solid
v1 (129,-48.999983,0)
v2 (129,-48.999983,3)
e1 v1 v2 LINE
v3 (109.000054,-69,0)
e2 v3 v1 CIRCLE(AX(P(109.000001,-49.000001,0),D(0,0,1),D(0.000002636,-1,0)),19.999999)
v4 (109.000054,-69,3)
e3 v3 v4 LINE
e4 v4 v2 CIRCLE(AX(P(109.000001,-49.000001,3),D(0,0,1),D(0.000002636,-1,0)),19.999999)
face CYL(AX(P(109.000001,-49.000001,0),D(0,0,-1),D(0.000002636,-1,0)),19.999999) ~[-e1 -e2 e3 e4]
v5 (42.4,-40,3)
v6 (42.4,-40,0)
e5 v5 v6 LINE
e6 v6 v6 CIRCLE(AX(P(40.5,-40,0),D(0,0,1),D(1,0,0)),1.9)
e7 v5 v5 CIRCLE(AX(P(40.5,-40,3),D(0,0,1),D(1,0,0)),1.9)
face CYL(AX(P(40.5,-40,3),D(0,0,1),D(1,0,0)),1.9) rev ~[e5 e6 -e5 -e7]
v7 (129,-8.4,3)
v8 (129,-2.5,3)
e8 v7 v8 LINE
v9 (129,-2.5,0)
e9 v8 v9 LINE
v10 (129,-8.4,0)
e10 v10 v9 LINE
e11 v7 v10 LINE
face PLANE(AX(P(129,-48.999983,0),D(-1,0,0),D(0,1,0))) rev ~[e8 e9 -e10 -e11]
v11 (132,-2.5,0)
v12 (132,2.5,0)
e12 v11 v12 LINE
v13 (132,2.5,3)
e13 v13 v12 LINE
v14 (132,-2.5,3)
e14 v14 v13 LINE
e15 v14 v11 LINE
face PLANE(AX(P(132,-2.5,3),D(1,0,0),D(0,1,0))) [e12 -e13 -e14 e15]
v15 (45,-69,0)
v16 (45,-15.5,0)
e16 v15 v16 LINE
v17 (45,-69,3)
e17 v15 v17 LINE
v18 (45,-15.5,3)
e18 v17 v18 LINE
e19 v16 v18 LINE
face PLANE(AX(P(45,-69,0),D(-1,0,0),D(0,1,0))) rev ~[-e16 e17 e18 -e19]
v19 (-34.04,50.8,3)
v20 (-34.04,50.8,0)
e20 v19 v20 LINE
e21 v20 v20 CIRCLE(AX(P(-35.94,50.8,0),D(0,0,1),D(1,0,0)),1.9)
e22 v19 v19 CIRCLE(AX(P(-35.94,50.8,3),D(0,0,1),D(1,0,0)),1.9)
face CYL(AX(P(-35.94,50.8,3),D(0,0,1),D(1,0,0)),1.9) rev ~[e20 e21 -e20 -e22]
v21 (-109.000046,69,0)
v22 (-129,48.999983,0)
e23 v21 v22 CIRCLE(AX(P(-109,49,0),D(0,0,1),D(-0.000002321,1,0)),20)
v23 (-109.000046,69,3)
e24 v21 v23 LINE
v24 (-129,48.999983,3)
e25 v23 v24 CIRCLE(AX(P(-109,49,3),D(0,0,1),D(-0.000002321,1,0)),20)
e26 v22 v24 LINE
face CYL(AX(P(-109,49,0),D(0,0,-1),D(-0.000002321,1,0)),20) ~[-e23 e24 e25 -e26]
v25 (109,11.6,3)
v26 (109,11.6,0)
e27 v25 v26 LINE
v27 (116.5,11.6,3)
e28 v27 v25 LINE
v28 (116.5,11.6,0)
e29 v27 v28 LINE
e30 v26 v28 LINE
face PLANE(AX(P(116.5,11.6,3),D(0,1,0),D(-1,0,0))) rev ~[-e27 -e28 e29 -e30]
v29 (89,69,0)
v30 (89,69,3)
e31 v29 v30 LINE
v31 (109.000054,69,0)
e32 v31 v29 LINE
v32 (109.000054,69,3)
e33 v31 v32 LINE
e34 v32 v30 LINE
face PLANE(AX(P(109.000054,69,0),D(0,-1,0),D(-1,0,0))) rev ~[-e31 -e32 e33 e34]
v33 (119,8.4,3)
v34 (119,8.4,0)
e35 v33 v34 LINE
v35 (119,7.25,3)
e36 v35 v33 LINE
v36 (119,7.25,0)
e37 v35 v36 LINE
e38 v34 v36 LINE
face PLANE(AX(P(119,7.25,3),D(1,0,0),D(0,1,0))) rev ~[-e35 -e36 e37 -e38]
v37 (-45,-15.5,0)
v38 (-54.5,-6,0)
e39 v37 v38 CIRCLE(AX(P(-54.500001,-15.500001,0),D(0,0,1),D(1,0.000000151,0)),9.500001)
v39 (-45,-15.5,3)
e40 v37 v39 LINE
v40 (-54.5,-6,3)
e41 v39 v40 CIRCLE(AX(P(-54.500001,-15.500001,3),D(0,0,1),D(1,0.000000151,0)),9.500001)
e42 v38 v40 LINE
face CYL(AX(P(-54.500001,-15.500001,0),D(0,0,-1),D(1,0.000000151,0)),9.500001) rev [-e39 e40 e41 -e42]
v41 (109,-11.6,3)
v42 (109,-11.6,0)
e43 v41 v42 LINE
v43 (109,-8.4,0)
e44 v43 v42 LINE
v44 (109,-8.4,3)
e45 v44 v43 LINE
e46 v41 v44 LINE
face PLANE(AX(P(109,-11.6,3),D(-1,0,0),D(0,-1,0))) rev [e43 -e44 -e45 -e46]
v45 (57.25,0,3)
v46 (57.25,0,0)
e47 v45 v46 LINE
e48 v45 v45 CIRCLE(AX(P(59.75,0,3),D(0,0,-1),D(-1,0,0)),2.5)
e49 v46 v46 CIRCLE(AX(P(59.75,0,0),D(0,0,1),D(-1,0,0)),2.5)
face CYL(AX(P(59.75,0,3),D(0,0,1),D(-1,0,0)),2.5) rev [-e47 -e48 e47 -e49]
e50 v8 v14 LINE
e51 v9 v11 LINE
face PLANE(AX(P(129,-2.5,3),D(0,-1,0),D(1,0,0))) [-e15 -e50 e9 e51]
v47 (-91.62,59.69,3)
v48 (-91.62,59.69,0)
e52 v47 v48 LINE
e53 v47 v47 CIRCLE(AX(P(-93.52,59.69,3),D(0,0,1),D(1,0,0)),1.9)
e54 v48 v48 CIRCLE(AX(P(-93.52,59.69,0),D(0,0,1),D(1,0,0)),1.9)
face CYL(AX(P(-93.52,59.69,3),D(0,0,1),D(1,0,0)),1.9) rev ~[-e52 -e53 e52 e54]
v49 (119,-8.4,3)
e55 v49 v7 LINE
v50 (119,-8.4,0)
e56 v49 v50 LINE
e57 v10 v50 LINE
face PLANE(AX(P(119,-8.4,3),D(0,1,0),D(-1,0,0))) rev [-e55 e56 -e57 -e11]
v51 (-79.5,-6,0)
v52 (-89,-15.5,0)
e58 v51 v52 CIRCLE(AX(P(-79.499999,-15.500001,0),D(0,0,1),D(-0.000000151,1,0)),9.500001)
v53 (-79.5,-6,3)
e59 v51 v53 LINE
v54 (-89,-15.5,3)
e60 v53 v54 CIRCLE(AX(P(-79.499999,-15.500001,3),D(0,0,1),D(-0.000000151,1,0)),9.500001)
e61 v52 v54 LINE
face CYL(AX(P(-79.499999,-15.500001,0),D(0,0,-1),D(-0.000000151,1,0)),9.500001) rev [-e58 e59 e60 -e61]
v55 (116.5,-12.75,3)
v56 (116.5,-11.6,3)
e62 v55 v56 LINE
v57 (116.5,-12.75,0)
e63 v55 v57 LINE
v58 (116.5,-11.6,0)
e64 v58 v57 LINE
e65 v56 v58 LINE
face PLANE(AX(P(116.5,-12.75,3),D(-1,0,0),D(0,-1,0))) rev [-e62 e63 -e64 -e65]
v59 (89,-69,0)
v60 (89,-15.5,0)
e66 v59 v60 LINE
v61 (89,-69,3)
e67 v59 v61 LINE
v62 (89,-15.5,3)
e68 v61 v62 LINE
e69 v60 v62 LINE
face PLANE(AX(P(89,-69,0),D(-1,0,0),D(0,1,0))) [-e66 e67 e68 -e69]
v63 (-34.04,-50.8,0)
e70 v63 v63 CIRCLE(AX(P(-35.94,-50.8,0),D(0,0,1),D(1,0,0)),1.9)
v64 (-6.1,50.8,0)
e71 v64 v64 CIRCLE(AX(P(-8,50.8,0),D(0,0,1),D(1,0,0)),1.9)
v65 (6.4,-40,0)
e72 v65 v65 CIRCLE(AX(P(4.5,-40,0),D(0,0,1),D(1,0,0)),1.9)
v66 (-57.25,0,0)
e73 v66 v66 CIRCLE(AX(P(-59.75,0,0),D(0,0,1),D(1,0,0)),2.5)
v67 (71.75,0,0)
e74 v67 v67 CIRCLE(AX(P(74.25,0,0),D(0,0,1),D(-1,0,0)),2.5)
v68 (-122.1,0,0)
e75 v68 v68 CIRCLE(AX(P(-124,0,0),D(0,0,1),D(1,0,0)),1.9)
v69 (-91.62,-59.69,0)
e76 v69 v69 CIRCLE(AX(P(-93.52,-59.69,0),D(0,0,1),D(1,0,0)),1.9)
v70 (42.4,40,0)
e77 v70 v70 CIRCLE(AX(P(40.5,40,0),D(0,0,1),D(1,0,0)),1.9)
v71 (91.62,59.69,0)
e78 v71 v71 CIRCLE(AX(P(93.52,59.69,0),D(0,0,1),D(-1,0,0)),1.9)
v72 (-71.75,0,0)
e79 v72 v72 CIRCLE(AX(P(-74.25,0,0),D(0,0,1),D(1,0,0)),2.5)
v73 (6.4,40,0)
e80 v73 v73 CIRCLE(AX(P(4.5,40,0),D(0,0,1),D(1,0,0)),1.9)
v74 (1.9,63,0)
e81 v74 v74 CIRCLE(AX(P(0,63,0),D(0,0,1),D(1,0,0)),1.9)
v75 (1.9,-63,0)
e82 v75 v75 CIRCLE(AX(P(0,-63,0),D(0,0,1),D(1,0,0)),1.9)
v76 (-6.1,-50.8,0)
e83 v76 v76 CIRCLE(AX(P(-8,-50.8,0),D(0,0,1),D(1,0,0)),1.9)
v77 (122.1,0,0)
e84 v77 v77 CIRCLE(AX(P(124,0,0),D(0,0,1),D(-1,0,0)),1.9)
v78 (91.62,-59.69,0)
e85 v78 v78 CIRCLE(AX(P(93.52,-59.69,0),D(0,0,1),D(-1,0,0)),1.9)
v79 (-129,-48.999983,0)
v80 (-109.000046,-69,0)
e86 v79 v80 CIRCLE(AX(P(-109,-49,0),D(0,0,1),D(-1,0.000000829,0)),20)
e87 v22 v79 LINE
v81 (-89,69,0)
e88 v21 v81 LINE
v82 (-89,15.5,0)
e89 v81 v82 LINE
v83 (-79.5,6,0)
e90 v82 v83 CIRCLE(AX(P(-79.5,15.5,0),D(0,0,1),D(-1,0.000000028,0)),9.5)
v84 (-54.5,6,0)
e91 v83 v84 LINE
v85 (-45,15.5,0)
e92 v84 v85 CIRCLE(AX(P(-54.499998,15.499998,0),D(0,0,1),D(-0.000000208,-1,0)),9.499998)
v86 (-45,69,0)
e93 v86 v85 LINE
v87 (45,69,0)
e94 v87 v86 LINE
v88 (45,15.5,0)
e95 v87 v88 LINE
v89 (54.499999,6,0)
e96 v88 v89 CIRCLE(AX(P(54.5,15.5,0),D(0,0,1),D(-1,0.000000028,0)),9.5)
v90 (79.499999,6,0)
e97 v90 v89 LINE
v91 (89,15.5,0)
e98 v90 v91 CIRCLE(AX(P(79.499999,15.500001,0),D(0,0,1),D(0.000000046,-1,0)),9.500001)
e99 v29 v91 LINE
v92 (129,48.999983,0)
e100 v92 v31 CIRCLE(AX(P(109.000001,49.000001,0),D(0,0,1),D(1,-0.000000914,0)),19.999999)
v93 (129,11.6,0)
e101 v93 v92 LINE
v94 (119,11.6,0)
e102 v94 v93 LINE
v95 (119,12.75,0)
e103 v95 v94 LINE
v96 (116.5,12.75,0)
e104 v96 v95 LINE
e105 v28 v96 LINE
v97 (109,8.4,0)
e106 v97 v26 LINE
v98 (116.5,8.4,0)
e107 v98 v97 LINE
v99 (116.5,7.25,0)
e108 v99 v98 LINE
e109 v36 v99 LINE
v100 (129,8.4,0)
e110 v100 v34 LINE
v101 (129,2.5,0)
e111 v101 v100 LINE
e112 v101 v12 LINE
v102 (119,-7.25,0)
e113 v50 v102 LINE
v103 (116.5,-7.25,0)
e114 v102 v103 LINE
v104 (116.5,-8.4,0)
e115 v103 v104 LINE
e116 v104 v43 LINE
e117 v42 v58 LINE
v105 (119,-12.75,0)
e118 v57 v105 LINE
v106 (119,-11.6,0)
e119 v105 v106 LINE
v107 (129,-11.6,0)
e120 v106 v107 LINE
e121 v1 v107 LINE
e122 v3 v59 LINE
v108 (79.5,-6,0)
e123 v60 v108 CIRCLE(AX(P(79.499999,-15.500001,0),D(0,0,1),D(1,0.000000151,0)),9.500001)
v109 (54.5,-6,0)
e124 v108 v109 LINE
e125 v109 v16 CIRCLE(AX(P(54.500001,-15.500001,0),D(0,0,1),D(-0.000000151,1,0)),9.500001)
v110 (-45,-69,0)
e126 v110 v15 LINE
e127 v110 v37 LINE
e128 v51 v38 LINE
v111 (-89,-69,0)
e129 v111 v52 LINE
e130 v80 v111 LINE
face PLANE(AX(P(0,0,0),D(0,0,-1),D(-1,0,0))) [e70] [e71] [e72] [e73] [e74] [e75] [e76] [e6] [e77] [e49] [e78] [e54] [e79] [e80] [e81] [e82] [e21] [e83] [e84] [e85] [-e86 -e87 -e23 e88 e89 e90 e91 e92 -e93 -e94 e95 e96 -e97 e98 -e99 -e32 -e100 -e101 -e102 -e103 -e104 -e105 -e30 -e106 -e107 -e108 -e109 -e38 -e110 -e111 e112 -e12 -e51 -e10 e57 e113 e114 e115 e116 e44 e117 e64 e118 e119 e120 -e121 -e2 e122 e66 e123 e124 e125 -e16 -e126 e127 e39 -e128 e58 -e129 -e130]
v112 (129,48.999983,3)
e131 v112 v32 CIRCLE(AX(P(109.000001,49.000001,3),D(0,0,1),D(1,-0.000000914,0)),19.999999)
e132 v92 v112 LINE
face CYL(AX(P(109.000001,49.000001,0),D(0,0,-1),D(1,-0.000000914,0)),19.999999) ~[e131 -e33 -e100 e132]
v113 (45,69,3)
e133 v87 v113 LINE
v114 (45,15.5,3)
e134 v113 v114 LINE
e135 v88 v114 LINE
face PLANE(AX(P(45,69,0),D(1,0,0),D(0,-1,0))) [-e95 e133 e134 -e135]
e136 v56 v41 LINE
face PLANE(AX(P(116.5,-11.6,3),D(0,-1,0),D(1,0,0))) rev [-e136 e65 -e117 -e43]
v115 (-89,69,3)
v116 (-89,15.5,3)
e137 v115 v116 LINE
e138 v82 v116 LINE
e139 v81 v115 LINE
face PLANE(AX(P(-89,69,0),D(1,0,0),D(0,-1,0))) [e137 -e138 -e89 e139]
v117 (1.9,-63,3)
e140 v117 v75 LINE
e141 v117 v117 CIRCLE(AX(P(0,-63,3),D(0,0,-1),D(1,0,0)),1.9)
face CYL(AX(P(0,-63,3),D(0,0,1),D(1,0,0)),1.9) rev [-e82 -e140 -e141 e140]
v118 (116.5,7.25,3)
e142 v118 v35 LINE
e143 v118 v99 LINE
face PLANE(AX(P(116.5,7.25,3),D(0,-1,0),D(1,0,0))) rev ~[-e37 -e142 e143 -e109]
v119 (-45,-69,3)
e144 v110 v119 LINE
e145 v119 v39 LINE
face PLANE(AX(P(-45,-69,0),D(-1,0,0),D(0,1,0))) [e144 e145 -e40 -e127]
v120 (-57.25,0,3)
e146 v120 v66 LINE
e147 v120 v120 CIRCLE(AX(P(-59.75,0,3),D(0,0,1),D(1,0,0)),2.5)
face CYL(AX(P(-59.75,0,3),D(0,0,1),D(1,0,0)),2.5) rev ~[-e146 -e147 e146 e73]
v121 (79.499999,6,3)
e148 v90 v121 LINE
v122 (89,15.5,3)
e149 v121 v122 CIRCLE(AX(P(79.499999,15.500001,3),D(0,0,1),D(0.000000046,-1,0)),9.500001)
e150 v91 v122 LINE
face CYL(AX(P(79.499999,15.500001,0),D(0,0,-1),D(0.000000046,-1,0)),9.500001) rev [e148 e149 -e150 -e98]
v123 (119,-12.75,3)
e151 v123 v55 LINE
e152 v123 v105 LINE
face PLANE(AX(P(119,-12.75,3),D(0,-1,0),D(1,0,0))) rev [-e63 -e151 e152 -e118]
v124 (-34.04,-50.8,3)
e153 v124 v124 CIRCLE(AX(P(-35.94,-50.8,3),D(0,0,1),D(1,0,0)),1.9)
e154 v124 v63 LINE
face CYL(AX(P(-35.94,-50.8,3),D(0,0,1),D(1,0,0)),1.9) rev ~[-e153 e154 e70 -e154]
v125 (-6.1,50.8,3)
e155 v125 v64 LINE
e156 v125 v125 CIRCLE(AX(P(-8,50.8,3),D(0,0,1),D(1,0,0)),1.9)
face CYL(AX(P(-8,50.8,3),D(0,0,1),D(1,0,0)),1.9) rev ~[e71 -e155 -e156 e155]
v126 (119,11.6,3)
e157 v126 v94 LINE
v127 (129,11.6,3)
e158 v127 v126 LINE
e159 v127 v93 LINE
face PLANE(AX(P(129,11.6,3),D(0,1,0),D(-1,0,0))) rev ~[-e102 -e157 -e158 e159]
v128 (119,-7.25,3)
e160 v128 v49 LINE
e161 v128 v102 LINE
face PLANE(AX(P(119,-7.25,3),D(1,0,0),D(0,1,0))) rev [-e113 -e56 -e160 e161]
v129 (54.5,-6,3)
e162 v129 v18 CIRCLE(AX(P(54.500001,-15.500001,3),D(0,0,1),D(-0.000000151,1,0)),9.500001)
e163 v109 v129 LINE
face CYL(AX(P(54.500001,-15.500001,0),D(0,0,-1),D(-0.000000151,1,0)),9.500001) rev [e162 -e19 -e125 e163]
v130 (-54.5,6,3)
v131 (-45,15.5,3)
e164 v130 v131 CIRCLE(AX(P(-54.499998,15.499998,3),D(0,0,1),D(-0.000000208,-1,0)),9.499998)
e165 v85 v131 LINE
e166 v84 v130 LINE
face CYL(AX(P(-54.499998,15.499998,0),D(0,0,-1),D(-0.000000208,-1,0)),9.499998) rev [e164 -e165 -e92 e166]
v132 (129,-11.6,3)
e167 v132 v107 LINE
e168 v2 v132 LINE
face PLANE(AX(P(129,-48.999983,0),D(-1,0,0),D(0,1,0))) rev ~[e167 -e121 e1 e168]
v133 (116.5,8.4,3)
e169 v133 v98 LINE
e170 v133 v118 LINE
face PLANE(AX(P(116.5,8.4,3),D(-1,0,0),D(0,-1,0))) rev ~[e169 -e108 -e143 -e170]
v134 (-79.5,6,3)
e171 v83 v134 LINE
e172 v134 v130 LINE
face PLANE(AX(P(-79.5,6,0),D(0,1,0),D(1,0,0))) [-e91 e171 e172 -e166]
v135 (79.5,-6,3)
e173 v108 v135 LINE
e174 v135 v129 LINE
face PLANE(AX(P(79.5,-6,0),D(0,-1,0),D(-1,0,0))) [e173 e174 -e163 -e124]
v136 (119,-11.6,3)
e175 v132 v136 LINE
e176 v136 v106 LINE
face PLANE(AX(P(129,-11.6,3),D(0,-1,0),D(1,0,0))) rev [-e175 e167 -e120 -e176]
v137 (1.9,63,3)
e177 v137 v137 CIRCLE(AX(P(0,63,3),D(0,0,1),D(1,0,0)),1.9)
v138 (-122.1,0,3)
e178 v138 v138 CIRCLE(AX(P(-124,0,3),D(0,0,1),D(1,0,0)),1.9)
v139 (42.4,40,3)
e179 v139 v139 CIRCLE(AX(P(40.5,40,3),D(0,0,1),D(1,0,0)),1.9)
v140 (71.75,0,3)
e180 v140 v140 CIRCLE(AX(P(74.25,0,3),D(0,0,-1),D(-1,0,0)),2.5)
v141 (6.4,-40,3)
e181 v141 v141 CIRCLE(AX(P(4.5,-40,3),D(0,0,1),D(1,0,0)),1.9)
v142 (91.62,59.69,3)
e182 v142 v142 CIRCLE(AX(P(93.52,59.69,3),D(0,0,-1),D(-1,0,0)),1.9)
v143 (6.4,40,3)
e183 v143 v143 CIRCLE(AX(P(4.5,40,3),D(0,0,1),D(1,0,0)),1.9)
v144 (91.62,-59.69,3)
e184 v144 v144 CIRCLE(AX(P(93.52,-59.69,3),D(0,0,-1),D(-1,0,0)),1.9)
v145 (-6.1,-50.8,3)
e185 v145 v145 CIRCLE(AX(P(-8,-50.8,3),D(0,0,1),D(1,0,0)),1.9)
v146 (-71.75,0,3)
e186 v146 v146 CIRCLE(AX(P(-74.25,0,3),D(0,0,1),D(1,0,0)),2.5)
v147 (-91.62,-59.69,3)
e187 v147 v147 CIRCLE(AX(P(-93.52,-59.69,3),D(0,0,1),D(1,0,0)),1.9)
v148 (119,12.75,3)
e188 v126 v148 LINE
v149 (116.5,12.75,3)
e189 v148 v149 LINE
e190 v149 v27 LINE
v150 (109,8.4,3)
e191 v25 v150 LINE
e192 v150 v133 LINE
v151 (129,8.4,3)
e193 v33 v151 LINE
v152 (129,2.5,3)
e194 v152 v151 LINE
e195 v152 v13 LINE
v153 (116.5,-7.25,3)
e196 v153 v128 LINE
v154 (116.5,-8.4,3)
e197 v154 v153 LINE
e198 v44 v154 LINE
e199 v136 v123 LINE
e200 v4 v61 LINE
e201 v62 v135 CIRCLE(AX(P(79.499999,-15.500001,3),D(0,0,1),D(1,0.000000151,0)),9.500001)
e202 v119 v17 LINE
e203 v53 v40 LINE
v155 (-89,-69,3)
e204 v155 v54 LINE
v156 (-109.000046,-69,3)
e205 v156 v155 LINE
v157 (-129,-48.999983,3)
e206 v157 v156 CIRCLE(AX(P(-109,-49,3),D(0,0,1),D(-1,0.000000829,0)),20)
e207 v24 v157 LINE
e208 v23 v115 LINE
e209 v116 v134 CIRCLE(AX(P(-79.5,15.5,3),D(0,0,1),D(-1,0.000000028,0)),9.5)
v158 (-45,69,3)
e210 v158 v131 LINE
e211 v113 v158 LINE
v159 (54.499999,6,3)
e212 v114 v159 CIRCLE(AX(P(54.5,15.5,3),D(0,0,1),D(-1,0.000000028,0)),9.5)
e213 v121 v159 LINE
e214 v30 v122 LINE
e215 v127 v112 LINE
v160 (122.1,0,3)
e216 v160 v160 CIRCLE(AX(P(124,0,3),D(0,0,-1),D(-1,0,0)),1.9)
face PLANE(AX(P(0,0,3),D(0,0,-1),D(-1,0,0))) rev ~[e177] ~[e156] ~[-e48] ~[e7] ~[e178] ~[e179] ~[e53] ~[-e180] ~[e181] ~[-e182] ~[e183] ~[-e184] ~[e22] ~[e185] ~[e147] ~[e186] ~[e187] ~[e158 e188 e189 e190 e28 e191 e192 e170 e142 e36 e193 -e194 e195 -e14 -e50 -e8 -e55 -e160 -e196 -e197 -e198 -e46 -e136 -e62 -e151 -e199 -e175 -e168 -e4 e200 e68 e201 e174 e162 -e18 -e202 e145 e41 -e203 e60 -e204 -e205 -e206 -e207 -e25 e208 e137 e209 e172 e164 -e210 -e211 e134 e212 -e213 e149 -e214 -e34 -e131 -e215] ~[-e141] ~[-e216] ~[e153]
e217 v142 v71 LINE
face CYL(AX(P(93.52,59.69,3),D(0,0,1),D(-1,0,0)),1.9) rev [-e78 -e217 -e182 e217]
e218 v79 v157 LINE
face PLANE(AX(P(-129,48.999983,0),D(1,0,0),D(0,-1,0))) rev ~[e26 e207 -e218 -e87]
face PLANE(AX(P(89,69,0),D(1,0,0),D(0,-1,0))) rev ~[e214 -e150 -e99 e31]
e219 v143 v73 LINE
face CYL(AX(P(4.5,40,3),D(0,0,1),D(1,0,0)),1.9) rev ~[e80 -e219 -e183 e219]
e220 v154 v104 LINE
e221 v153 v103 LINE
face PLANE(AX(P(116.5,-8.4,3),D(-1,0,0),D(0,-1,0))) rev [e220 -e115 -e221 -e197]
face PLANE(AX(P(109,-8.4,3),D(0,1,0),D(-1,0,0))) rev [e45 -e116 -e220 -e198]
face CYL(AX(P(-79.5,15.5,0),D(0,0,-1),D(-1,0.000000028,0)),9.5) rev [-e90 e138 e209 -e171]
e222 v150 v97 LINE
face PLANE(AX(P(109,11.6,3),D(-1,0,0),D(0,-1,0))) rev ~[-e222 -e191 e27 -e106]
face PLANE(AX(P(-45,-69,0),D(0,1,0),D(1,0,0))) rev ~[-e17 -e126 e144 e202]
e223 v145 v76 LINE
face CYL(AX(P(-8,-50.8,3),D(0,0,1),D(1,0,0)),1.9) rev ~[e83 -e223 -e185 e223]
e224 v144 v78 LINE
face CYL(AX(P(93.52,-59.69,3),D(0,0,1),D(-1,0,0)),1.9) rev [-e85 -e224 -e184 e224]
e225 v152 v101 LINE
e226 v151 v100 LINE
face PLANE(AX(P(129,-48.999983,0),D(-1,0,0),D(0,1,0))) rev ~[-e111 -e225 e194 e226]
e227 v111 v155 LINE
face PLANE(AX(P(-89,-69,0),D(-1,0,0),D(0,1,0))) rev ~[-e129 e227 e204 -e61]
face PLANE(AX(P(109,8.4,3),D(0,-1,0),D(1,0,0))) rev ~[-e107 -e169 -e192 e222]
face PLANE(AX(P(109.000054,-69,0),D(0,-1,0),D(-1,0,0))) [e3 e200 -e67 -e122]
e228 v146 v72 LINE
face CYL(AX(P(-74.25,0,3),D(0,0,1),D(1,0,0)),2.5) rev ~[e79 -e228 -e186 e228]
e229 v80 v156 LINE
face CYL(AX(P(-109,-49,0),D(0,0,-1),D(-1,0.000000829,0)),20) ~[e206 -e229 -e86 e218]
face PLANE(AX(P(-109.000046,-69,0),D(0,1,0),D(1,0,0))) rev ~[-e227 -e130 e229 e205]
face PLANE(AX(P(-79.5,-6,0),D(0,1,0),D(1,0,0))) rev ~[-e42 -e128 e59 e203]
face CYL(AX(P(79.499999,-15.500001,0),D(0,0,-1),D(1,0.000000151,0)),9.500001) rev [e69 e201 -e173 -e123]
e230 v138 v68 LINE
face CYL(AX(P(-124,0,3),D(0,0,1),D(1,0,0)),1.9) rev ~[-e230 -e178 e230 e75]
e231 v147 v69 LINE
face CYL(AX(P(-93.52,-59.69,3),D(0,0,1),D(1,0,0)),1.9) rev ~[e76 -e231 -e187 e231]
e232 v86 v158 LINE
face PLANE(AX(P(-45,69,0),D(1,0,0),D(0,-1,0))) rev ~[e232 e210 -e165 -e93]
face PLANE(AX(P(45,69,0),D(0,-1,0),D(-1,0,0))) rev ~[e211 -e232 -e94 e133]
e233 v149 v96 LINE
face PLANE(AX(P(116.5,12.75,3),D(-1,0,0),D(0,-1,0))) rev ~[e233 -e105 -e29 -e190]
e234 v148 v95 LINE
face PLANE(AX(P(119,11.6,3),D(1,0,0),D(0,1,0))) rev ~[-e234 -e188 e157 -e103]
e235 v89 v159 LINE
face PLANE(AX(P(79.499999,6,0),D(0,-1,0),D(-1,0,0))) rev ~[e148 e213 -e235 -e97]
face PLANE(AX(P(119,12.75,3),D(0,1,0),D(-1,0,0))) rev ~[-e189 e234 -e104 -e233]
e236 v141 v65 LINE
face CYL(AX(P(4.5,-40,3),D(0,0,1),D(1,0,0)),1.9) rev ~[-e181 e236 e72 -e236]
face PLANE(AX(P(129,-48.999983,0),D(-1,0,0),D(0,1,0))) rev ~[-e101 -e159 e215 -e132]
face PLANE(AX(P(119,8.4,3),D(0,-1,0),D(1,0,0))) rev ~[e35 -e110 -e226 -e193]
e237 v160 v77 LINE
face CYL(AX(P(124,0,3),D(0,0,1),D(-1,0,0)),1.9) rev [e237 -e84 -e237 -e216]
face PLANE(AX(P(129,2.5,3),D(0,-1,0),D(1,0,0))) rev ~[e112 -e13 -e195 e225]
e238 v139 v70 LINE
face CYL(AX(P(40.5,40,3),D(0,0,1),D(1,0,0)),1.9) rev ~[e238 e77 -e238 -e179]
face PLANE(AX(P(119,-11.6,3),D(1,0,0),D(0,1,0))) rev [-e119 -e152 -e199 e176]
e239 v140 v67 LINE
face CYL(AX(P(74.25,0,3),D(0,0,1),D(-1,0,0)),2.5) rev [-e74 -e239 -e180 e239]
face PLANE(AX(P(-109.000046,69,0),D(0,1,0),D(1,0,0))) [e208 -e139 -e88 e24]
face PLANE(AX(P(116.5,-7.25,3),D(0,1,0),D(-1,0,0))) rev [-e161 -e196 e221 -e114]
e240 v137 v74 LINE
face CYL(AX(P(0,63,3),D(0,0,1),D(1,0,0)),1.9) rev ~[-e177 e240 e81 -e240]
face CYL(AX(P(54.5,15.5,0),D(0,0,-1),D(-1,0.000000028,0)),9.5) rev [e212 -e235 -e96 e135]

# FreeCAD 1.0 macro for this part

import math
import FreeCAD as App
import Part
import Sketcher
Q = App.Units.Quantity

doc = App.newDocument("Part")
body = doc.addObject("PartDesign::Body", "Body")

# Sketch on XY plane
sketch1 = body.newObject("Sketcher::SketchObject", "Sketch")
sketch1.AttachmentSupport = (doc.getObject("XY_Plane"), [""])
sketch1.MapMode = "FlatFace"
sketch1.addGeometry(Part.LineSegment(App.Vector(-45, -69, 0), App.Vector(45, -69, 0)), False)
sketch1.addGeometry(Part.LineSegment(App.Vector(45, -69, 0), App.Vector(45, -16, 0)), False)
sketch1.addGeometry(Part.ArcOfCircle(Part.Circle(App.Vector(55, -16, 0), App.Vector(0, 0, 1), 10), math.radians(90), math.radians(180)), False)
sketch1.addGeometry(Part.LineSegment(App.Vector(54, -6, 0), App.Vector(80, -6, 0)), False)
sketch1.addGeometry(Part.ArcOfCircle(Part.Circle(App.Vector(79, -16, 0), App.Vector(0, 0, 1), 10), math.radians(0), math.radians(90)), False)
sketch1.addGeometry(Part.LineSegment(App.Vector(89, -16, 0), App.Vector(89, -69, 0)), False)
sketch1.addGeometry(Part.LineSegment(App.Vector(89, -69, 0), App.Vector(109, -69, 0)), False)
sketch1.addGeometry(Part.ArcOfCircle(Part.Circle(App.Vector(109, -49, 0), App.Vector(0, 0, 1), 20), math.radians(-90), math.radians(0)), False)
sketch1.addGeometry(Part.LineSegment(App.Vector(129, -49, 0), App.Vector(129, 49, 0)), False)
sketch1.addGeometry(Part.ArcOfCircle(Part.Circle(App.Vector(109, 49, 0), App.Vector(0, 0, 1), 20), math.radians(0), math.radians(90)), False)
sketch1.addGeometry(Part.LineSegment(App.Vector(109, 69, 0), App.Vector(89, 69, 0)), False)
sketch1.addGeometry(Part.LineSegment(App.Vector(89, 69, 0), App.Vector(89, 16, 0)), False)
sketch1.addGeometry(Part.ArcOfCircle(Part.Circle(App.Vector(79, 16, 0), App.Vector(0, 0, 1), 10), math.radians(-90), math.radians(0)), False)
sketch1.addGeometry(Part.LineSegment(App.Vector(79, 6, 0), App.Vector(54, 6, 0)), False)
sketch1.addGeometry(Part.ArcOfCircle(Part.Circle(App.Vector(54, 15, 0), App.Vector(0, 0, 1), 9), math.radians(180), math.radians(270)), False)
sketch1.addGeometry(Part.LineSegment(App.Vector(45, 16, 0), App.Vector(45, 69, 0)), False)
sketch1.addGeometry(Part.LineSegment(App.Vector(45, 69, 0), App.Vector(-45, 69, 0)), False)
sketch1.addGeometry(Part.LineSegment(App.Vector(-45, 69, 0), App.Vector(-45, 16, 0)), False)
sketch1.addGeometry(Part.ArcOfCircle(Part.Circle(App.Vector(-54, 15, 0), App.Vector(0, 0, 1), 9), math.radians(-90), math.radians(0)), False)
sketch1.addGeometry(Part.LineSegment(App.Vector(-54, 6, 0), App.Vector(-80, 6, 0)), False)
sketch1.addGeometry(Part.ArcOfCircle(Part.Circle(App.Vector(-80, 15, 0), App.Vector(0, 0, 1), 9), math.radians(180), math.radians(270)), False)
sketch1.addGeometry(Part.LineSegment(App.Vector(-89, 16, 0), App.Vector(-89, 69, 0)), False)
sketch1.addGeometry(Part.LineSegment(App.Vector(-89, 69, 0), App.Vector(-109, 69, 0)), False)
sketch1.addGeometry(Part.ArcOfCircle(Part.Circle(App.Vector(-109, 49, 0), App.Vector(0, 0, 1), 20), math.radians(90), math.radians(180)), False)
sketch1.addGeometry(Part.LineSegment(App.Vector(-129, 49, 0), App.Vector(-129, -49, 0)), False)
sketch1.addGeometry(Part.ArcOfCircle(Part.Circle(App.Vector(-109, -49, 0), App.Vector(0, 0, 1), 20), math.radians(180), math.radians(270)), False)
sketch1.addGeometry(Part.LineSegment(App.Vector(-109, -69, 0), App.Vector(-89, -69, 0)), False)
sketch1.addGeometry(Part.LineSegment(App.Vector(-89, -69, 0), App.Vector(-89, -16, 0)), False)
sketch1.addGeometry(Part.ArcOfCircle(Part.Circle(App.Vector(-79, -16, 0), App.Vector(0, 0, 1), 10), math.radians(90), math.radians(180)), False)
sketch1.addGeometry(Part.LineSegment(App.Vector(-80, -6, 0), App.Vector(-54, -6, 0)), False)
sketch1.addGeometry(Part.ArcOfCircle(Part.Circle(App.Vector(-55, -16, 0), App.Vector(0, 0, 1), 10), math.radians(0), math.radians(90)), False)
sketch1.addGeometry(Part.LineSegment(App.Vector(-45, -16, 0), App.Vector(-45, -69, 0)), False)
sketch1.addConstraint(Sketcher.Constraint("Coincident", 0, 2, 1, 1))
sketch1.addConstraint(Sketcher.Constraint("Tangent", 1, 2, 2, 2))
sketch1.addConstraint(Sketcher.Constraint("Tangent", 2, 1, 3, 1))
sketch1.addConstraint(Sketcher.Constraint("Tangent", 3, 2, 4, 2))
sketch1.addConstraint(Sketcher.Constraint("Tangent", 4, 1, 5, 1))
sketch1.addConstraint(Sketcher.Constraint("Coincident", 5, 2, 6, 1))
sketch1.addConstraint(Sketcher.Constraint("Coincident", 6, 2, 7, 1))
sketch1.addConstraint(Sketcher.Constraint("Tangent", 7, 2, 8, 1))
sketch1.addConstraint(Sketcher.Constraint("Tangent", 8, 2, 9, 1))
sketch1.addConstraint(Sketcher.Constraint("Coincident", 9, 2, 10, 1))
sketch1.addConstraint(Sketcher.Constraint("Coincident", 10, 2, 11, 1))
sketch1.addConstraint(Sketcher.Constraint("Tangent", 11, 2, 12, 2))
sketch1.addConstraint(Sketcher.Constraint("Tangent", 12, 1, 13, 1))
sketch1.addConstraint(Sketcher.Constraint("Tangent", 13, 2, 14, 2))
sketch1.addConstraint(Sketcher.Constraint("Tangent", 14, 1, 15, 1))
sketch1.addConstraint(Sketcher.Constraint("Coincident", 15, 2, 16, 1))
sketch1.addConstraint(Sketcher.Constraint("Coincident", 16, 2, 17, 1))
sketch1.addConstraint(Sketcher.Constraint("Tangent", 17, 2, 18, 2))
sketch1.addConstraint(Sketcher.Constraint("Tangent", 18, 1, 19, 1))
sketch1.addConstraint(Sketcher.Constraint("Tangent", 19, 2, 20, 2))
sketch1.addConstraint(Sketcher.Constraint("Tangent", 20, 1, 21, 1))
sketch1.addConstraint(Sketcher.Constraint("Coincident", 21, 2, 22, 1))
sketch1.addConstraint(Sketcher.Constraint("Coincident", 22, 2, 23, 1))
sketch1.addConstraint(Sketcher.Constraint("Tangent", 23, 2, 24, 1))
sketch1.addConstraint(Sketcher.Constraint("Tangent", 24, 2, 25, 1))
sketch1.addConstraint(Sketcher.Constraint("Coincident", 25, 2, 26, 1))
sketch1.addConstraint(Sketcher.Constraint("Coincident", 26, 2, 27, 1))
sketch1.addConstraint(Sketcher.Constraint("Tangent", 27, 2, 28, 2))
sketch1.addConstraint(Sketcher.Constraint("Tangent", 28, 1, 29, 1))
sketch1.addConstraint(Sketcher.Constraint("Tangent", 29, 2, 30, 2))
sketch1.addConstraint(Sketcher.Constraint("Tangent", 30, 1, 31, 1))
sketch1.addConstraint(Sketcher.Constraint("Coincident", 31, 2, 0, 1))
sketch1.addConstraint(Sketcher.Constraint("Horizontal", 0))
sketch1.addConstraint(Sketcher.Constraint("Vertical", 1))
sketch1.addConstraint(Sketcher.Constraint("Horizontal", 3))
sketch1.addConstraint(Sketcher.Constraint("Vertical", 5))
sketch1.addConstraint(Sketcher.Constraint("Horizontal", 6))
sketch1.addConstraint(Sketcher.Constraint("Vertical", 8))
sketch1.addConstraint(Sketcher.Constraint("Horizontal", 10))
sketch1.addConstraint(Sketcher.Constraint("Vertical", 11))
sketch1.addConstraint(Sketcher.Constraint("Horizontal", 13))
sketch1.addConstraint(Sketcher.Constraint("Vertical", 15))
sketch1.addConstraint(Sketcher.Constraint("Horizontal", 16))
sketch1.addConstraint(Sketcher.Constraint("Vertical", 17))
sketch1.addConstraint(Sketcher.Constraint("Horizontal", 19))
sketch1.addConstraint(Sketcher.Constraint("Vertical", 21))
sketch1.addConstraint(Sketcher.Constraint("Horizontal", 22))
sketch1.addConstraint(Sketcher.Constraint("Vertical", 24))
sketch1.addConstraint(Sketcher.Constraint("Horizontal", 26))
sketch1.addConstraint(Sketcher.Constraint("Vertical", 27))
sketch1.addConstraint(Sketcher.Constraint("Horizontal", 29))
sketch1.addConstraint(Sketcher.Constraint("Vertical", 31))
sketch1.addConstraint(Sketcher.Constraint("Equal", 2, 4))
sketch1.addConstraint(Sketcher.Constraint("Equal", 7, 9))
sketch1.addConstraint(Sketcher.Constraint("Equal", 4, 12))
sketch1.addConstraint(Sketcher.Constraint("Equal", 12, 14))
sketch1.addConstraint(Sketcher.Constraint("Equal", 14, 18))
sketch1.addConstraint(Sketcher.Constraint("Equal", 18, 20))
sketch1.addConstraint(Sketcher.Constraint("Equal", 9, 23))
sketch1.addConstraint(Sketcher.Constraint("Equal", 23, 25))
sketch1.addConstraint(Sketcher.Constraint("Equal", 20, 28))
sketch1.addConstraint(Sketcher.Constraint("Equal", 28, 30))
sketch1.addConstraint(Sketcher.Constraint("Symmetric", 2, 3, 18, 3, -1, 1))
sketch1.addConstraint(Sketcher.Constraint("Symmetric", 7, 3, 23, 3, -1, 1))
sketch1.addConstraint(Sketcher.Constraint("Symmetric", 12, 3, 28, 3, -1, 1))
sketch1.addConstraint(Sketcher.Constraint("Symmetric", 9, 2, 25, 2, -1, 1))
sketch1.addConstraint(Sketcher.Constraint("Symmetric", 15, 2, 31, 2, -1, 1))
sketch1.addConstraint(Sketcher.Constraint("Symmetric", 14, 3, 18, 3, -2))
sketch1.addConstraint(Sketcher.Constraint("Symmetric", 10, 2, 21, 2, -2))
sketch1.addConstraint(Sketcher.Constraint("Horizontal", 0, 2, 5, 2))
sketch1.addConstraint(Sketcher.Constraint("Vertical", 4, 3, 12, 3))
sketch1.addConstraint(Sketcher.Constraint("Vertical", 6, 2, 9, 2))
sketch1.addConstraint(Sketcher.Constraint("Vertical", 22, 2, 25, 2))
sketch1.addConstraint(Sketcher.Constraint("Radius", 7, Q("19.999999 mm")))
sketch1.addConstraint(Sketcher.Constraint("Radius", 2, Q("9.500001 mm")))
sketch1.addConstraint(Sketcher.Constraint("DistanceX", 0, 1, 0, 2, Q("90 mm")))
sketch1.addConstraint(Sketcher.Constraint("DistanceX", 3, 1, 3, 2, Q("25 mm")))
sketch1.addConstraint(Sketcher.Constraint("DistanceY", 1, 1, 1, 2, Q("53.5 mm")))
sketch1.addConstraint(Sketcher.Constraint("DistanceX", -1, 1, 7, 3, Q("109.000001 mm")))
sketch1.addConstraint(Sketcher.Constraint("DistanceY", 7, 3, -1, 1, Q("49.000001 mm")))
sketch1.addConstraint(Sketcher.Constraint("DistanceX", 6, 1, 6, 2, Q("20.000054 mm")))
pad1 = body.newObject("PartDesign::Pad", "Pad")
pad1.Profile = sketch1
pad1.Length = 3

# Sketch on XY plane
sketch2 = body.newObject("Sketcher::SketchObject", "Sketch001")
sketch2.AttachmentSupport = (doc.getObject("XY_Plane"), [""])
sketch2.MapMode = "FlatFace"
sketch2.AttachmentOffset = App.Placement(App.Vector(0, 0, 3), App.Rotation())
sketch2.addGeometry(Part.Circle(App.Vector(-74.2, 0, 0), App.Vector(0, 0, 1), 2.5), False)
sketch2.addGeometry(Part.Circle(App.Vector(-59.8, 0, 0), App.Vector(0, 0, 1), 2.5), False)
sketch2.addConstraint(Sketcher.Constraint("Equal", 0, 1))
sketch2.addConstraint(Sketcher.Constraint("PointOnObject", 0, 3, -1))
sketch2.addConstraint(Sketcher.Constraint("PointOnObject", 1, 3, -1))
sketch2.addConstraint(Sketcher.Constraint("Diameter", 0, Q("5 mm")))
sketch2.addConstraint(Sketcher.Constraint("DistanceX", 0, 3, 1, 3, Q("14.5 mm")))
sketch2.addConstraint(Sketcher.Constraint("DistanceX", 0, 3, -1, 1, Q("74.25 mm")))
pocket1 = body.newObject("PartDesign::Pocket", "Pocket")
pocket1.Profile = sketch2
pocket1.Type = "ThroughAll"
doc.recompute()

mirrored = body.newObject("PartDesign::Mirrored", "Mirrored")
mirrored.Originals = [pocket1]
mirrored.MirrorPlane = (doc.getObject("YZ_Plane"), [""])
body.Tip = mirrored

# Sketch on XY plane
sketch3 = body.newObject("Sketcher::SketchObject", "Sketch002")
sketch3.AttachmentSupport = (doc.getObject("XY_Plane"), [""])
sketch3.MapMode = "FlatFace"
sketch3.AttachmentOffset = App.Placement(App.Vector(0, 0, 3), App.Rotation())
sketch3.addGeometry(Part.Circle(App.Vector(-124, 0, 0), App.Vector(0, 0, 1), 1.9), False)
sketch3.addGeometry(Part.Circle(App.Vector(-93.5, -59.7, 0), App.Vector(0, 0, 1), 1.9), False)
sketch3.addGeometry(Part.Circle(App.Vector(-93.5, 59.7, 0), App.Vector(0, 0, 1), 1.9), False)
sketch3.addConstraint(Sketcher.Constraint("Equal", 0, 1))
sketch3.addConstraint(Sketcher.Constraint("Equal", 1, 2))
sketch3.addConstraint(Sketcher.Constraint("Symmetric", 1, 3, 2, 3, -1))
sketch3.addConstraint(Sketcher.Constraint("PointOnObject", 0, 3, -1))
sketch3.addConstraint(Sketcher.Constraint("Diameter", 0, Q("3.8 mm")))
sketch3.addConstraint(Sketcher.Constraint("DistanceX", 0, 3, -1, 1, Q("124 mm")))
sketch3.addConstraint(Sketcher.Constraint("DistanceX", 1, 3, -1, 1, Q("93.52 mm")))
sketch3.addConstraint(Sketcher.Constraint("DistanceY", 1, 3, -1, 1, Q("59.69 mm")))
pocket2 = body.newObject("PartDesign::Pocket", "Pocket001")
pocket2.Profile = sketch3
pocket2.Type = "ThroughAll"
doc.recompute()

mirrored2 = body.newObject("PartDesign::Mirrored", "Mirrored001")
mirrored2.Originals = [pocket2]
mirrored2.MirrorPlane = (doc.getObject("YZ_Plane"), [""])
body.Tip = mirrored2

# Sketch on XY plane
sketch4 = body.newObject("Sketcher::SketchObject", "Sketch003")
sketch4.AttachmentSupport = (doc.getObject("XY_Plane"), [""])
sketch4.MapMode = "FlatFace"
sketch4.AttachmentOffset = App.Placement(App.Vector(0, 0, 3), App.Rotation())
sketch4.addGeometry(Part.Circle(App.Vector(-35.9, 50.8, 0), App.Vector(0, 0, 1), 1.9), False)
sketch4.addGeometry(Part.Circle(App.Vector(-8, 50.8, 0), App.Vector(0, 0, 1), 1.9), False)
sketch4.addGeometry(Part.Circle(App.Vector(-8, -50.8, 0), App.Vector(0, 0, 1), 1.9), False)
sketch4.addGeometry(Part.Circle(App.Vector(-35.9, -50.8, 0), App.Vector(0, 0, 1), 1.9), False)
sketch4.addConstraint(Sketcher.Constraint("Equal", 0, 1))
sketch4.addConstraint(Sketcher.Constraint("Equal", 1, 2))
sketch4.addConstraint(Sketcher.Constraint("Equal", 2, 3))
sketch4.addConstraint(Sketcher.Constraint("Symmetric", 1, 3, 2, 3, -1))
sketch4.addConstraint(Sketcher.Constraint("Symmetric", 0, 3, 3, 3, -1))
sketch4.addConstraint(Sketcher.Constraint("Horizontal", 0, 3, 1, 3))
sketch4.addConstraint(Sketcher.Constraint("Diameter", 0, Q("3.8 mm")))
sketch4.addConstraint(Sketcher.Constraint("DistanceX", 1, 3, -1, 1, Q("8 mm")))
sketch4.addConstraint(Sketcher.Constraint("DistanceY", -1, 1, 0, 3, Q("50.8 mm")))
sketch4.addConstraint(Sketcher.Constraint("DistanceX", 0, 3, -1, 1, Q("35.94 mm")))
pocket3 = body.newObject("PartDesign::Pocket", "Pocket002")
pocket3.Profile = sketch4
pocket3.Type = "ThroughAll"

# Sketch on XY plane
sketch5 = body.newObject("Sketcher::SketchObject", "Sketch004")
sketch5.AttachmentSupport = (doc.getObject("XY_Plane"), [""])
sketch5.MapMode = "FlatFace"
sketch5.AttachmentOffset = App.Placement(App.Vector(0, 0, 3), App.Rotation())
sketch5.addGeometry(Part.Circle(App.Vector(40.5, -40, 0), App.Vector(0, 0, 1), 1.9), False)
sketch5.addGeometry(Part.Circle(App.Vector(4.5, 40, 0), App.Vector(0, 0, 1), 1.9), False)
sketch5.addGeometry(Part.Circle(App.Vector(4.5, -40, 0), App.Vector(0, 0, 1), 1.9), False)
sketch5.addGeometry(Part.Circle(App.Vector(40.5, 40, 0), App.Vector(0, 0, 1), 1.9), False)
sketch5.addConstraint(Sketcher.Constraint("Equal", 0, 1))
sketch5.addConstraint(Sketcher.Constraint("Equal", 1, 2))
sketch5.addConstraint(Sketcher.Constraint("Equal", 2, 3))
sketch5.addConstraint(Sketcher.Constraint("Symmetric", 1, 3, 2, 3, -1))
sketch5.addConstraint(Sketcher.Constraint("Symmetric", 0, 3, 3, 3, -1))
sketch5.addConstraint(Sketcher.Constraint("Horizontal", 0, 3, 2, 3))
sketch5.addConstraint(Sketcher.Constraint("Diameter", 0, Q("3.8 mm")))
sketch5.addConstraint(Sketcher.Constraint("DistanceY", 0, 3, -1, 1, Q("40 mm")))
sketch5.addConstraint(Sketcher.Constraint("DistanceX", 1, 3, 0, 3, Q("36 mm")))
sketch5.addConstraint(Sketcher.Constraint("DistanceX", -1, 1, 0, 3, Q("40.5 mm")))
pocket4 = body.newObject("PartDesign::Pocket", "Pocket003")
pocket4.Profile = sketch5
pocket4.Type = "ThroughAll"

# Sketch on XY plane
sketch6 = body.newObject("Sketcher::SketchObject", "Sketch005")
sketch6.AttachmentSupport = (doc.getObject("XY_Plane"), [""])
sketch6.MapMode = "FlatFace"
sketch6.AttachmentOffset = App.Placement(App.Vector(0, 0, 3), App.Rotation())
sketch6.addGeometry(Part.LineSegment(App.Vector(129, 8.4, 0), App.Vector(129, 11.6, 0)), False)
sketch6.addGeometry(Part.LineSegment(App.Vector(129, 11.6, 0), App.Vector(119, 11.6, 0)), False)
sketch6.addGeometry(Part.LineSegment(App.Vector(119, 11.6, 0), App.Vector(119, 12.8, 0)), False)
sketch6.addGeometry(Part.LineSegment(App.Vector(119, 12.8, 0), App.Vector(116.5, 12.8, 0)), False)
sketch6.addGeometry(Part.LineSegment(App.Vector(116.5, 12.8, 0), App.Vector(116.5, 11.6, 0)), False)
sketch6.addGeometry(Part.LineSegment(App.Vector(116.5, 11.6, 0), App.Vector(109, 11.6, 0)), False)
sketch6.addGeometry(Part.LineSegment(App.Vector(109, 11.6, 0), App.Vector(109, 8.4, 0)), False)
sketch6.addGeometry(Part.LineSegment(App.Vector(109, 8.4, 0), App.Vector(116.5, 8.4, 0)), False)
sketch6.addGeometry(Part.LineSegment(App.Vector(116.5, 8.4, 0), App.Vector(116.5, 7.2, 0)), False)
sketch6.addGeometry(Part.LineSegment(App.Vector(116.5, 7.2, 0), App.Vector(119, 7.2, 0)), False)
sketch6.addGeometry(Part.LineSegment(App.Vector(119, 7.2, 0), App.Vector(119, 8.4, 0)), False)
sketch6.addGeometry(Part.LineSegment(App.Vector(119, 8.4, 0), App.Vector(129, 8.4, 0)), False)
sketch6.addConstraint(Sketcher.Constraint("Coincident", 0, 2, 1, 1))
sketch6.addConstraint(Sketcher.Constraint("Coincident", 1, 2, 2, 1))
sketch6.addConstraint(Sketcher.Constraint("Coincident", 2, 2, 3, 1))
sketch6.addConstraint(Sketcher.Constraint("Coincident", 3, 2, 4, 1))
sketch6.addConstraint(Sketcher.Constraint("Coincident", 4, 2, 5, 1))
sketch6.addConstraint(Sketcher.Constraint("Coincident", 5, 2, 6, 1))
sketch6.addConstraint(Sketcher.Constraint("Coincident", 6, 2, 7, 1))
sketch6.addConstraint(Sketcher.Constraint("Coincident", 7, 2, 8, 1))
sketch6.addConstraint(Sketcher.Constraint("Coincident", 8, 2, 9, 1))
sketch6.addConstraint(Sketcher.Constraint("Coincident", 9, 2, 10, 1))
sketch6.addConstraint(Sketcher.Constraint("Coincident", 10, 2, 11, 1))
sketch6.addConstraint(Sketcher.Constraint("Coincident", 11, 2, 0, 1))
sketch6.addConstraint(Sketcher.Constraint("Vertical", 0))
sketch6.addConstraint(Sketcher.Constraint("Horizontal", 1))
sketch6.addConstraint(Sketcher.Constraint("Vertical", 2))
sketch6.addConstraint(Sketcher.Constraint("Horizontal", 3))
sketch6.addConstraint(Sketcher.Constraint("Vertical", 4))
sketch6.addConstraint(Sketcher.Constraint("Horizontal", 5))
sketch6.addConstraint(Sketcher.Constraint("Vertical", 6))
sketch6.addConstraint(Sketcher.Constraint("Horizontal", 7))
sketch6.addConstraint(Sketcher.Constraint("Vertical", 8))
sketch6.addConstraint(Sketcher.Constraint("Horizontal", 9))
sketch6.addConstraint(Sketcher.Constraint("Vertical", 10))
sketch6.addConstraint(Sketcher.Constraint("Horizontal", 11))
sketch6.addConstraint(Sketcher.Constraint("Horizontal", 1, 2, 4, 2))
sketch6.addConstraint(Sketcher.Constraint("Horizontal", 7, 2, 10, 2))
sketch6.addConstraint(Sketcher.Constraint("Vertical", 4, 2, 7, 2))
sketch6.addConstraint(Sketcher.Constraint("Vertical", 2, 2, 9, 2))
sketch6.addConstraint(Sketcher.Constraint("Equal", 4, 8))
sketch6.addConstraint(Sketcher.Constraint("DistanceX", 1, 2, 1, 1, Q("10 mm")))
sketch6.addConstraint(Sketcher.Constraint("DistanceX", 3, 2, 3, 1, Q("2.5 mm")))
sketch6.addConstraint(Sketcher.Constraint("DistanceX", 5, 2, 5, 1, Q("7.5 mm")))
sketch6.addConstraint(Sketcher.Constraint("DistanceY", 0, 1, 0, 2, Q("3.2 mm")))
sketch6.addConstraint(Sketcher.Constraint("DistanceX", -1, 1, 0, 2, Q("129 mm")))
sketch6.addConstraint(Sketcher.Constraint("DistanceY", 2, 1, 2, 2, Q("1.15 mm")))
sketch6.addConstraint(Sketcher.Constraint("DistanceY", -1, 1, 0, 2, Q("11.6 mm")))
pocket5 = body.newObject("PartDesign::Pocket", "Pocket004")
pocket5.Profile = sketch6
pocket5.Type = "ThroughAll"
doc.recompute()

mirrored3 = body.newObject("PartDesign::Mirrored", "Mirrored002")
mirrored3.Originals = [pocket5]
mirrored3.MirrorPlane = (doc.getObject("XZ_Plane"), [""])
body.Tip = mirrored3

# Sketch on XY plane
sketch7 = body.newObject("Sketcher::SketchObject", "Sketch006")
sketch7.AttachmentSupport = (doc.getObject("XY_Plane"), [""])
sketch7.MapMode = "FlatFace"
sketch7.AttachmentOffset = App.Placement(App.Vector(0, 0, 3), App.Rotation())
sketch7.addGeometry(Part.LineSegment(App.Vector(129, 2.5, 0), App.Vector(129, -2.5, 0)), False)
sketch7.addGeometry(Part.LineSegment(App.Vector(129, -2.5, 0), App.Vector(132, -2.5, 0)), False)
sketch7.addGeometry(Part.LineSegment(App.Vector(132, -2.5, 0), App.Vector(132, 2.5, 0)), False)
sketch7.addGeometry(Part.LineSegment(App.Vector(132, 2.5, 0), App.Vector(129, 2.5, 0)), False)
sketch7.addConstraint(Sketcher.Constraint("Coincident", 0, 2, 1, 1))
sketch7.addConstraint(Sketcher.Constraint("Coincident", 1, 2, 2, 1))
sketch7.addConstraint(Sketcher.Constraint("Coincident", 2, 2, 3, 1))
sketch7.addConstraint(Sketcher.Constraint("Coincident", 3, 2, 0, 1))
sketch7.addConstraint(Sketcher.Constraint("Vertical", 0))
sketch7.addConstraint(Sketcher.Constraint("Horizontal", 1))
sketch7.addConstraint(Sketcher.Constraint("Vertical", 2))
sketch7.addConstraint(Sketcher.Constraint("Horizontal", 3))
sketch7.addConstraint(Sketcher.Constraint("DistanceX", 1, 1, 1, 2, Q("3 mm")))
sketch7.addConstraint(Sketcher.Constraint("DistanceY", 0, 2, 0, 1, Q("5 mm")))
sketch7.addConstraint(Sketcher.Constraint("DistanceX", -1, 1, 0, 2, Q("129 mm")))
sketch7.addConstraint(Sketcher.Constraint("DistanceY", 0, 2, -1, 1, Q("2.5 mm")))
pad2 = body.newObject("PartDesign::Pad", "Pad001")
pad2.Profile = sketch7
pad2.Length = 3
pad2.Reversed = True

# Sketch on XY plane
sketch8 = body.newObject("Sketcher::SketchObject", "Sketch007")
sketch8.AttachmentSupport = (doc.getObject("XY_Plane"), [""])
sketch8.MapMode = "FlatFace"
sketch8.AttachmentOffset = App.Placement(App.Vector(0, 0, 3), App.Rotation())
sketch8.addGeometry(Part.Circle(App.Vector(0, 63, 0), App.Vector(0, 0, 1), 1.9), False)
sketch8.addConstraint(Sketcher.Constraint("PointOnObject", 0, 3, -2))
sketch8.addConstraint(Sketcher.Constraint("Diameter", 0, Q("3.8 mm")))
sketch8.addConstraint(Sketcher.Constraint("DistanceY", -1, 1, 0, 3, Q("63 mm")))
pocket6 = body.newObject("PartDesign::Pocket", "Pocket005")
pocket6.Profile = sketch8
pocket6.Type = "ThroughAll"
doc.recompute()

mirrored4 = body.newObject("PartDesign::Mirrored", "Mirrored003")
mirrored4.Originals = [pocket6]
mirrored4.MirrorPlane = (doc.getObject("XZ_Plane"), [""])
body.Tip = mirrored4

doc.recompute()
